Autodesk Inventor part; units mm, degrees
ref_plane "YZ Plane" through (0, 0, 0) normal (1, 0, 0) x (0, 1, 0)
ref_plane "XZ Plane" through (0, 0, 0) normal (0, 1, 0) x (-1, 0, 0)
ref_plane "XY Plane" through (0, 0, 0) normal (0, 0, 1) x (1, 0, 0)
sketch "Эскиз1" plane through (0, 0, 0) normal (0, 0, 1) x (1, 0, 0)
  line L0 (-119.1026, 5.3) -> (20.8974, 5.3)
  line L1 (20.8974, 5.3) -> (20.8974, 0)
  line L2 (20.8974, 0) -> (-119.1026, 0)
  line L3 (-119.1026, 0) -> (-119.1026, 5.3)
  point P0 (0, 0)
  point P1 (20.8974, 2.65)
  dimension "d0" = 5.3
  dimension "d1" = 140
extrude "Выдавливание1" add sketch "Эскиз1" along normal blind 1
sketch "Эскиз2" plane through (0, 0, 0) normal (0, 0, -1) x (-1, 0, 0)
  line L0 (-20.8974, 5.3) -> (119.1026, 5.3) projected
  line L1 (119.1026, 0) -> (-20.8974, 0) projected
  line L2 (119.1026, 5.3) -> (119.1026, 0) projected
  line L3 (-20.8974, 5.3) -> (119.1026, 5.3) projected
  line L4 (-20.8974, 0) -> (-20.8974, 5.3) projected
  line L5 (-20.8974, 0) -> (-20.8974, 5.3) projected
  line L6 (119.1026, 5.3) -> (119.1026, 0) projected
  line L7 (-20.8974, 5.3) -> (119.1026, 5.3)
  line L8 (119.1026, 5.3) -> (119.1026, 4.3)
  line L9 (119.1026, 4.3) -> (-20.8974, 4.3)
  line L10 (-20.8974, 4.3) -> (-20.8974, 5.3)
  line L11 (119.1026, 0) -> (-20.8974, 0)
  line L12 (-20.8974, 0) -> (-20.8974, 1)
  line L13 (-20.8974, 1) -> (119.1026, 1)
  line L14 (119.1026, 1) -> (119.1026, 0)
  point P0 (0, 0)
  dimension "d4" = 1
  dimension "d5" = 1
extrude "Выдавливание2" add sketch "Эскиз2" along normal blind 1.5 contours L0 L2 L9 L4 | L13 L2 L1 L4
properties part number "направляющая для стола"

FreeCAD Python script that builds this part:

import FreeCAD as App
import Part
import Sketcher
Q = App.Units.Quantity


def add_polygon(sketch, points):
    """Adds a closed chain of lines whose ends are joined by coincident constraints."""
    first, n = sketch.GeometryCount, len(points)
    for a, b in zip(points, points[1:] + points[:1]):
        sketch.addGeometry(Part.LineSegment(App.Vector(*a, 0), App.Vector(*b, 0)), False)
    for i in range(n):
        sketch.addConstraint(Sketcher.Constraint("Coincident", first + i, 2, first + (i + 1) % n, 1))

doc = App.newDocument("Part")
body = doc.addObject("PartDesign::Body", "Body")

# Sketch on XY plane
sketch1 = doc.addObject("Sketcher::SketchObject", "Sketch")
body.addObject(sketch1)
sketch1.AttachmentSupport = (doc.XY_Plane, [""])
sketch1.MapMode = "FlatFace"
add_polygon(sketch1, [(21, 5), (-119, 5), (-119, 0), (21, 0)])  # lines 0-3
sketch1.addConstraint([
    Sketcher.Constraint("Horizontal", 0),
    Sketcher.Constraint("Vertical", 1),
    Sketcher.Constraint("Horizontal", 2),
    Sketcher.Constraint("Vertical", 3),
    Sketcher.Constraint("PointOnObject", 1, 2, -1),
    Sketcher.Constraint("DistanceX", 0, 2, 0, 1, Q("140 mm")),
    Sketcher.Constraint("DistanceY", 1, 2, 1, 1, Q("5.3 mm")),
    Sketcher.Constraint("DistanceX", 0, 2, -1, 1, Q("119.1026 mm")),
])
pad1 = doc.addObject("PartDesign::Pad", "Pad")
body.addObject(pad1)
pad1.Profile = sketch1
pad1.Length = 1

# Sketch on XY plane
sketch2 = doc.addObject("Sketcher::SketchObject", "Sketch001")
body.addObject(sketch2)
sketch2.AttachmentSupport = (doc.XY_Plane, [""])
sketch2.MapMode = "FlatFace"
add_polygon(sketch2, [(-119.1, 5.3), (20.9, 5.3), (20.9, 4.3), (-119.1, 4.3)])  # lines 0-3
add_polygon(sketch2, [(-119.1, 1), (20.9, 1), (20.9, 0), (-119.1, 0)])  # lines 4-7
sketch2.addConstraint([
    Sketcher.Constraint("Horizontal", 0),
    Sketcher.Constraint("Vertical", 1),
    Sketcher.Constraint("Horizontal", 2),
    Sketcher.Constraint("Vertical", 3),
    Sketcher.Constraint("Horizontal", 4),
    Sketcher.Constraint("Vertical", 5),
    Sketcher.Constraint("Horizontal", 6),
    Sketcher.Constraint("Vertical", 7),
    Sketcher.Constraint("PointOnObject", 5, 2, -1),
    Sketcher.Constraint("Vertical", 1, 2, 4, 2),
    Sketcher.Constraint("Vertical", 3, 2, 6, 2),
    Sketcher.Constraint("Equal", 3, 5),
    Sketcher.Constraint("DistanceY", 1, 2, 1, 1, Q("1 mm")),
    Sketcher.Constraint("DistanceX", 0, 1, 0, 2, Q("140 mm")),
    Sketcher.Constraint("DistanceY", -1, 1, 0, 2, Q("5.3 mm")),
    Sketcher.Constraint("DistanceX", -1, 1, 0, 2, Q("20.8974 mm")),
])
pad2 = doc.addObject("PartDesign::Pad", "Pad001")
body.addObject(pad2)
pad2.Profile = sketch2
pad2.Length = 1.5
pad2.Reversed = True

doc.recompute()
